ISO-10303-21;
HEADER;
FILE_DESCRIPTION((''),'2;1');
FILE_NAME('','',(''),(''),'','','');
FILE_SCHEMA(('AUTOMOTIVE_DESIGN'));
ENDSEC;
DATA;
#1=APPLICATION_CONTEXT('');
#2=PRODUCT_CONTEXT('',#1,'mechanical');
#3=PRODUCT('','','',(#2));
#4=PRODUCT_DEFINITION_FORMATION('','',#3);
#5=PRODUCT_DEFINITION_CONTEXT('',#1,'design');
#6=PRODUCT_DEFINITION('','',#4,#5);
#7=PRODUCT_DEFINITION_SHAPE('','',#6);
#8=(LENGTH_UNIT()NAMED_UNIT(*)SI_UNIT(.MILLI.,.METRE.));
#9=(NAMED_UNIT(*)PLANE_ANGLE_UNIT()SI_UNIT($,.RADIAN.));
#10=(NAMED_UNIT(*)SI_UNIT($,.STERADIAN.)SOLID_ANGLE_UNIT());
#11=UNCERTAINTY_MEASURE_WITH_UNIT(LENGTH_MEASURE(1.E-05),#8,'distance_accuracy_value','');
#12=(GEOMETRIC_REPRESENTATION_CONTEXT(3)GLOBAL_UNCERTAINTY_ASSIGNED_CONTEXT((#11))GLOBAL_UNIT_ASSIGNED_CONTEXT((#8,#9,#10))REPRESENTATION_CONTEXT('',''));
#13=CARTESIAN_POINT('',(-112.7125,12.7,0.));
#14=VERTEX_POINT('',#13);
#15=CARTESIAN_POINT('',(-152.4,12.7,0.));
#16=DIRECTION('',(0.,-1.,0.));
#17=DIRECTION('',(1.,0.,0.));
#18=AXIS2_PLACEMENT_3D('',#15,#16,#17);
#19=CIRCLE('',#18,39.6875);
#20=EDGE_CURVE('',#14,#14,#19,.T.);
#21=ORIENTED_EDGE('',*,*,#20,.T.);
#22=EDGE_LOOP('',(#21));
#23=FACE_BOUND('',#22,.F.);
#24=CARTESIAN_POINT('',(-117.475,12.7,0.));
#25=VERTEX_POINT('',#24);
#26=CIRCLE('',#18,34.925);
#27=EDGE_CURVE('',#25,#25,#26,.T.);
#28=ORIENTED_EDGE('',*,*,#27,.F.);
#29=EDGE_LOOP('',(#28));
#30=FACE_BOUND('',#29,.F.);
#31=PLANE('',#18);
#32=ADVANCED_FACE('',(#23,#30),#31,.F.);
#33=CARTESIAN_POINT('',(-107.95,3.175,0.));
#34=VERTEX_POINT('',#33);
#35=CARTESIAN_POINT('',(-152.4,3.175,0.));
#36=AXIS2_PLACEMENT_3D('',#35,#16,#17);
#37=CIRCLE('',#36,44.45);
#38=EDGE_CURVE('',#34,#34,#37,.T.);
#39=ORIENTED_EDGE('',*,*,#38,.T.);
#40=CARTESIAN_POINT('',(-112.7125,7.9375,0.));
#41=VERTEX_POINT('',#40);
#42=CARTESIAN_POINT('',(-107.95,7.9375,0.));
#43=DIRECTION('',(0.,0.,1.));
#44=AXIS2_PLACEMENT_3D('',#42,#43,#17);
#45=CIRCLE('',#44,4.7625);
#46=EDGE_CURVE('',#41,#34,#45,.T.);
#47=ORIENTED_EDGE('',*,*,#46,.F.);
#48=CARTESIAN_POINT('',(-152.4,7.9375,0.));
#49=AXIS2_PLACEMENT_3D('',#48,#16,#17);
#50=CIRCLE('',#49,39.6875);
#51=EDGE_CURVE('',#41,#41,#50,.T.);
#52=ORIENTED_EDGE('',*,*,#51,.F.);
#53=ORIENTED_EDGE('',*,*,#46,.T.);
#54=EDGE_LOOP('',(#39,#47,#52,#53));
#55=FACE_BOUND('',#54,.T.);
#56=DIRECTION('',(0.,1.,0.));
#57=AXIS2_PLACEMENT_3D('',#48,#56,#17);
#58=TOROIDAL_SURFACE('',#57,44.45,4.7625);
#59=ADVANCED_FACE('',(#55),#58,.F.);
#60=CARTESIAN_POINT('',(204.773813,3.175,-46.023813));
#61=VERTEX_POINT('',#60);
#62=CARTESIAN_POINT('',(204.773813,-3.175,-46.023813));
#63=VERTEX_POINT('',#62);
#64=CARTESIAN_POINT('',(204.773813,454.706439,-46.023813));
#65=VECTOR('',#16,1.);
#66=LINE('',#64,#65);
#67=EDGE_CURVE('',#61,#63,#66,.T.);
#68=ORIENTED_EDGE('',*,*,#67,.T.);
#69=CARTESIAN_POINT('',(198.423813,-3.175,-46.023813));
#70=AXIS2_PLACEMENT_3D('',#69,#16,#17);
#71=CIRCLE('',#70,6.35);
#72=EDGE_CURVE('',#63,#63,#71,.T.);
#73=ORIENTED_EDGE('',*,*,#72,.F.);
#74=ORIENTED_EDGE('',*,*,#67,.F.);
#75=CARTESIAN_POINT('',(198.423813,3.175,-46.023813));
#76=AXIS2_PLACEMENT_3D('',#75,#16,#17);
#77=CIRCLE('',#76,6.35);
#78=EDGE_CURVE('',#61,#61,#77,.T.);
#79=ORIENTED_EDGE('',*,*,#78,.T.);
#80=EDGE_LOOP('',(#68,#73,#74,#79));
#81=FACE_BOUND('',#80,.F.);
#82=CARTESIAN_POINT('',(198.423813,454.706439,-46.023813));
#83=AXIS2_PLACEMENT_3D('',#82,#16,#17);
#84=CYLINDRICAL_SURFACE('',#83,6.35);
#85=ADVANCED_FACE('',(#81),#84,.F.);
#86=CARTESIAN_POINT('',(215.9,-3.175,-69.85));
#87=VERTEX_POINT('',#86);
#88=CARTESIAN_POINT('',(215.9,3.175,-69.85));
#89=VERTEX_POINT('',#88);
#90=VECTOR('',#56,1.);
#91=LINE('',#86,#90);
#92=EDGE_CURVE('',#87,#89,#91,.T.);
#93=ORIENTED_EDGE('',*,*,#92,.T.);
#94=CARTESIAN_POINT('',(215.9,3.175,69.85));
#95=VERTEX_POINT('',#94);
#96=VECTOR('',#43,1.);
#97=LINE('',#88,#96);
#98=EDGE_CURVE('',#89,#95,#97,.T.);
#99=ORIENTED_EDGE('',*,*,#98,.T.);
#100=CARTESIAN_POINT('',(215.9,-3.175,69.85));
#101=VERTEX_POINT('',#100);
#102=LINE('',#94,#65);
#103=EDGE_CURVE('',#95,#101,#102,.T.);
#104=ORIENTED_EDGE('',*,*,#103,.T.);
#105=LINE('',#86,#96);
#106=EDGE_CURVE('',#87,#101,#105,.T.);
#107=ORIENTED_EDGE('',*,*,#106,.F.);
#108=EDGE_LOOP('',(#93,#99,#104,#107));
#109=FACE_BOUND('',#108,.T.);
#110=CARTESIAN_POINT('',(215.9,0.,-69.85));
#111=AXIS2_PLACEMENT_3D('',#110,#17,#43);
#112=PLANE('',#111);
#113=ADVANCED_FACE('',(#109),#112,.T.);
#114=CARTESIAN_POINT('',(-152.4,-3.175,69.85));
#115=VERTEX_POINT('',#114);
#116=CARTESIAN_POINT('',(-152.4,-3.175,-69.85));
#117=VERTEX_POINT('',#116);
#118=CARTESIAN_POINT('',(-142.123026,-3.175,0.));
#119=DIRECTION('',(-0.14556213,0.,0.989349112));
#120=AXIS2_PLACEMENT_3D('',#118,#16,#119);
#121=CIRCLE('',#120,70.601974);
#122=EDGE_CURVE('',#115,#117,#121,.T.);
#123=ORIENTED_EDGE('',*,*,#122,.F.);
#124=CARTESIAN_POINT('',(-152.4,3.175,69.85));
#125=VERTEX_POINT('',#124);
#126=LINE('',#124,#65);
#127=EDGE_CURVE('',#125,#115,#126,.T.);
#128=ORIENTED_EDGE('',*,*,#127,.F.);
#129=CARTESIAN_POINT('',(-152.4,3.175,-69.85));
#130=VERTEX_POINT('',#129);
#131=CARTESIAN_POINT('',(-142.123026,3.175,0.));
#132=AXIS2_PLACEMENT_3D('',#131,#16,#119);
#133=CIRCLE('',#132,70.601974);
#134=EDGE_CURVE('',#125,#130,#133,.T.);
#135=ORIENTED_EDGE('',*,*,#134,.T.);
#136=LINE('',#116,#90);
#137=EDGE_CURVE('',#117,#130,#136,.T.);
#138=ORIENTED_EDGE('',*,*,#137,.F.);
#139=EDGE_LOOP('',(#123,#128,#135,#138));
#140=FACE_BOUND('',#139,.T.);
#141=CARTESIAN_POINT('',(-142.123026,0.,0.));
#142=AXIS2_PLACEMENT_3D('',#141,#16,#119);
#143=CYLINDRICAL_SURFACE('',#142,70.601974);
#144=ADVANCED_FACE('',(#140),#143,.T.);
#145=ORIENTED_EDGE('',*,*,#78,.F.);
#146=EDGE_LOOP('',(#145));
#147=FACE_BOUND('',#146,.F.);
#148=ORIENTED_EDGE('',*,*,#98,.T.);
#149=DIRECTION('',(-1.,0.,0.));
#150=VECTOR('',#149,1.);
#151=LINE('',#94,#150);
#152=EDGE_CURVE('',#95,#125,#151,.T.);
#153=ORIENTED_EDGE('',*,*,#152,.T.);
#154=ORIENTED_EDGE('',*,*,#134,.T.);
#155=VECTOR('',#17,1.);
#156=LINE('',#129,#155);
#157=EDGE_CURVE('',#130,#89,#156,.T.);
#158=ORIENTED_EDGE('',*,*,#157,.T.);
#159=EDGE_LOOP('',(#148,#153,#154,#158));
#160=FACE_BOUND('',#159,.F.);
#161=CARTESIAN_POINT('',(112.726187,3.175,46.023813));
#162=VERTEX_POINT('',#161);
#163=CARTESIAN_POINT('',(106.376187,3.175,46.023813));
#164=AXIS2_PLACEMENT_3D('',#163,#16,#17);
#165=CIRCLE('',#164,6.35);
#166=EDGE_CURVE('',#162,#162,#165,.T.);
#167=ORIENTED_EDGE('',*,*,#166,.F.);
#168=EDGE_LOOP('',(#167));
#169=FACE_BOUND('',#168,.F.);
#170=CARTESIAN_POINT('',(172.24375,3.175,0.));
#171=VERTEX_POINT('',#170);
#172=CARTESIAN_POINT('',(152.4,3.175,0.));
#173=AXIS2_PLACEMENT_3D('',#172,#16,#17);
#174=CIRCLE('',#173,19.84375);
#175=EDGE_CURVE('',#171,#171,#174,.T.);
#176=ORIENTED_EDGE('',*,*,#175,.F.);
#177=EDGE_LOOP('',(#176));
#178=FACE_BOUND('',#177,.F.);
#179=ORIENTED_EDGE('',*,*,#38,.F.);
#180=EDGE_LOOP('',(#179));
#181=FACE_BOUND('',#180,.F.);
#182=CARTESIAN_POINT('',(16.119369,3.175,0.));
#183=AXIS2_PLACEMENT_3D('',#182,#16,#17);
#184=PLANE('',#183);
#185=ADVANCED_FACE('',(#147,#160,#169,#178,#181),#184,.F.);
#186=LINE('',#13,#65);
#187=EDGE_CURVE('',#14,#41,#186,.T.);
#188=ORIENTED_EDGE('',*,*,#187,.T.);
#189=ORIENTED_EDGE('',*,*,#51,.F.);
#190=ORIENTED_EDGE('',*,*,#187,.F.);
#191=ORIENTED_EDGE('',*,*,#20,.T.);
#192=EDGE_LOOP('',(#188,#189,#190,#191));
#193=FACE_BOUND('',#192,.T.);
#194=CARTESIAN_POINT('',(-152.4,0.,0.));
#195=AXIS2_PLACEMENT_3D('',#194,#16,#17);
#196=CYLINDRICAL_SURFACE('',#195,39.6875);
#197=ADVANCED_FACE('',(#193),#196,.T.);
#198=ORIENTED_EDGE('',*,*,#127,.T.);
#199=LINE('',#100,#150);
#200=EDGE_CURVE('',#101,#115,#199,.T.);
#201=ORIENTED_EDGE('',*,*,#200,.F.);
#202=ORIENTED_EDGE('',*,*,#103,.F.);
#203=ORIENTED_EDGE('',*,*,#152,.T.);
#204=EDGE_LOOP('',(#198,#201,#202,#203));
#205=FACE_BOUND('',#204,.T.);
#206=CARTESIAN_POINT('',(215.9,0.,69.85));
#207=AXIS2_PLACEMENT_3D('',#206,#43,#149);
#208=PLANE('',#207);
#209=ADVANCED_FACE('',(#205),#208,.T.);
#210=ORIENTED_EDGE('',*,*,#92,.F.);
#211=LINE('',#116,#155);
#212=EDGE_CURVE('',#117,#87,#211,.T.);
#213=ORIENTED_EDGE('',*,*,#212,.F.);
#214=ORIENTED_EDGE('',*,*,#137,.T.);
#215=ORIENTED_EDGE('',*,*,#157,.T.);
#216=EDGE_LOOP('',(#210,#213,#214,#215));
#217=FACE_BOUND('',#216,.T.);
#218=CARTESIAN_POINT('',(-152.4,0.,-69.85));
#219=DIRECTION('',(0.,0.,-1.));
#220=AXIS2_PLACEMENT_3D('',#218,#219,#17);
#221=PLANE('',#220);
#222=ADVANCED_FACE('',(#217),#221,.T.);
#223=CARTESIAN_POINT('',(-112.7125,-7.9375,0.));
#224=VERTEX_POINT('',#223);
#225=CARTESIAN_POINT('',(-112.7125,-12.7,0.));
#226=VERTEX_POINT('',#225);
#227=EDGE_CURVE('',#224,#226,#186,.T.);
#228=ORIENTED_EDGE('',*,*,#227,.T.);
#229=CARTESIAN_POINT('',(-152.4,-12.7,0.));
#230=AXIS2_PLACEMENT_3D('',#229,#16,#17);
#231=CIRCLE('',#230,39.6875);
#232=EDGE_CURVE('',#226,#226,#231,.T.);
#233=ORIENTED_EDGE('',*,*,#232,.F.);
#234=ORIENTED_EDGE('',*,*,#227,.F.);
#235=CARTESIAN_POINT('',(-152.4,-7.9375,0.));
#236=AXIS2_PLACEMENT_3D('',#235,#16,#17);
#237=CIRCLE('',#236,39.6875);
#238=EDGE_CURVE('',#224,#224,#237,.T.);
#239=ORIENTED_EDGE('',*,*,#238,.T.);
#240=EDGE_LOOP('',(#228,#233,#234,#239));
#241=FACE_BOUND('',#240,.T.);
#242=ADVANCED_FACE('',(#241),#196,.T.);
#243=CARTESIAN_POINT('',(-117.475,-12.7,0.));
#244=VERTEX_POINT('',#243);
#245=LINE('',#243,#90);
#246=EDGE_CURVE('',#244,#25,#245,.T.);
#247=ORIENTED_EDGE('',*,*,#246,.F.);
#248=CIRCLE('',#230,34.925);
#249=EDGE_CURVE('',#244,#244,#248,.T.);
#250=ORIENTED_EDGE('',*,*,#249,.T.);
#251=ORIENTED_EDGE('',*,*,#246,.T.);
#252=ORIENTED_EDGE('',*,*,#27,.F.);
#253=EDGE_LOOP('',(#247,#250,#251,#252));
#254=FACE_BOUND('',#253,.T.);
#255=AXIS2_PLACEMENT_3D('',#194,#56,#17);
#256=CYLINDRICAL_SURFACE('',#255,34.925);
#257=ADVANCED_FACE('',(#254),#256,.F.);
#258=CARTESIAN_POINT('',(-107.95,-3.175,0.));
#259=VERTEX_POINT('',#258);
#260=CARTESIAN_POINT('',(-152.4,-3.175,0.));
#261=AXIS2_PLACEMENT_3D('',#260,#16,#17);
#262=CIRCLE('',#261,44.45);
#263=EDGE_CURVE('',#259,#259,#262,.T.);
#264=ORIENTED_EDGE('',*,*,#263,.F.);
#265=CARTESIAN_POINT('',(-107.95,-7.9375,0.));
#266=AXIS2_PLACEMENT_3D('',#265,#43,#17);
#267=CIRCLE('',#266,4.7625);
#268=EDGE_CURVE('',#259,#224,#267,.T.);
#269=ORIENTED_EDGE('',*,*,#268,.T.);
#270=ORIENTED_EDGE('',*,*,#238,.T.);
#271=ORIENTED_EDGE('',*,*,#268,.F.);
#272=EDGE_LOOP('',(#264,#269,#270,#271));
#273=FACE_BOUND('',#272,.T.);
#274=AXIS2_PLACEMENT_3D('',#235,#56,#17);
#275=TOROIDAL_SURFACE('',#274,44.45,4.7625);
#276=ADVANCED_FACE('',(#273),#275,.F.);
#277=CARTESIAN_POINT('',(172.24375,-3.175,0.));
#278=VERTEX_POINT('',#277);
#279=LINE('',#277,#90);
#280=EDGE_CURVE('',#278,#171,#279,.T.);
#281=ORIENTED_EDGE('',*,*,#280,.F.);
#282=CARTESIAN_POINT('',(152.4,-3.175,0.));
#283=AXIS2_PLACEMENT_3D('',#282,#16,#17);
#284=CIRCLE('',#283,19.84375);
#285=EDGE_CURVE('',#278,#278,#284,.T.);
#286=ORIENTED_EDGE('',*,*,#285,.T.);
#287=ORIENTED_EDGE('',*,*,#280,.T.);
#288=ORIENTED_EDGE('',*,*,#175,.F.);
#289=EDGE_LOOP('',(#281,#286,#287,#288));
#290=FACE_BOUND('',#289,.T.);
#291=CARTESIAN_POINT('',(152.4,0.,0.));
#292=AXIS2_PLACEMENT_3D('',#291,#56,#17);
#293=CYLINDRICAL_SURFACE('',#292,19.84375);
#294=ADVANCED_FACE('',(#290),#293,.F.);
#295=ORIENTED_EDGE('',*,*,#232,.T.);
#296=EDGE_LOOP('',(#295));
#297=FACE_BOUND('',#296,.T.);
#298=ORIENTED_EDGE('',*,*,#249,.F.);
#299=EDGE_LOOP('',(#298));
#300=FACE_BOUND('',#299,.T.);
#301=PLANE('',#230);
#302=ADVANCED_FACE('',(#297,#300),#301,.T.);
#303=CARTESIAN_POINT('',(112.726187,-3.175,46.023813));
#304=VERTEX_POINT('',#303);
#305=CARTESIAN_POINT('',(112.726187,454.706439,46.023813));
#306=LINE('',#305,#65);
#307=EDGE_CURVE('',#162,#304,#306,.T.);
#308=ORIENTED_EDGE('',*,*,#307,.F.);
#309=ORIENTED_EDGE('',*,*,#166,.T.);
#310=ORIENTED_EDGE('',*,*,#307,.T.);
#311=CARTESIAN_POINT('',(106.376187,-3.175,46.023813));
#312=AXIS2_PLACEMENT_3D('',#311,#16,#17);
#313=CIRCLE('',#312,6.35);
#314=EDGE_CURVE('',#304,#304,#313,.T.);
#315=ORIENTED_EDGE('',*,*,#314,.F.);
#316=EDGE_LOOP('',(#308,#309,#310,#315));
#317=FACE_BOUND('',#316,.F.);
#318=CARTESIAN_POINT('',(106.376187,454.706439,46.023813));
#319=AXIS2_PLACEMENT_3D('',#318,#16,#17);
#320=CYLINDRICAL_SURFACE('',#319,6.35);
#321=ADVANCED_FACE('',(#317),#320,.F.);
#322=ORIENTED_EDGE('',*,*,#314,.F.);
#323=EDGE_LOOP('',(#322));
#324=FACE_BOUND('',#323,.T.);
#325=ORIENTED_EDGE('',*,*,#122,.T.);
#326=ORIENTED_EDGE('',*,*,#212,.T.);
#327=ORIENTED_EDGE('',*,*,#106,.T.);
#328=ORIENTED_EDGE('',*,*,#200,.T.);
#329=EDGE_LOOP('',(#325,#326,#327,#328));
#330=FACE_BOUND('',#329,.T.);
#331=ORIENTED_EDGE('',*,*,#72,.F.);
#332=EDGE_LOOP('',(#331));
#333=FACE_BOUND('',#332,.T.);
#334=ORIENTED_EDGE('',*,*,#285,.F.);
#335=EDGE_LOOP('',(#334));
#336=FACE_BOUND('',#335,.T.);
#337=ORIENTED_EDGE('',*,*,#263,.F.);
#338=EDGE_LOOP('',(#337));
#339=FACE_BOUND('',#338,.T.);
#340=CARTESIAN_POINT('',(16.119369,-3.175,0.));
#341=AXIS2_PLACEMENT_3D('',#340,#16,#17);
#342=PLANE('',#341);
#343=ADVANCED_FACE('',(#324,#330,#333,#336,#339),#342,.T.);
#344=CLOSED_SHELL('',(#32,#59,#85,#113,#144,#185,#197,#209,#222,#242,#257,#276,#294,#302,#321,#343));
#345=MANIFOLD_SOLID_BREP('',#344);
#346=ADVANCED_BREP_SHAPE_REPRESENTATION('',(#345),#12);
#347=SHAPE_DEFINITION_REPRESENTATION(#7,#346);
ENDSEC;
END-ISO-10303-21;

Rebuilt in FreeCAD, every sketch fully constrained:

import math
import FreeCAD as App
import Part
import Sketcher
Q = App.Units.Quantity


def edges_at(feature, points):
    """Names of the edges that pass closest to the given points."""
    edges = feature.Shape.Edges
    near = lambda p: min(range(len(edges)), key=lambda i: edges[i].distToShape(Part.Vertex(*p))[0])
    return sorted({f"Edge{near(p) + 1}" for p in points})

doc = App.newDocument("Part")
body = doc.addObject("PartDesign::Body", "Body")

# Sketch on XZ plane
sketch1 = body.newObject("Sketcher::SketchObject", "Sketch")
sketch1.AttachmentSupport = (doc.getObject("XZ_Plane"), [""])
sketch1.MapMode = "FlatFace"
sketch1.addGeometry([
    Part.LineSegment(App.Vector(216, -70, 0), App.Vector(216, 70, 0)),  # 0
    Part.LineSegment(App.Vector(216, 70, 0), App.Vector(-152, 70, 0)),  # 1
    Part.ArcOfCircle(Part.Circle(App.Vector(-142, 0, 0), App.Vector(0, 0, 1), 71), math.radians(98), math.radians(262)),  # 2
    Part.LineSegment(App.Vector(-152, -70, 0), App.Vector(216, -70, 0)),  # 3
    Part.Circle(App.Vector(-152, 0, 0), App.Vector(0, 0, 1), 40),  # 4
    Part.Circle(App.Vector(152, 0, 0), App.Vector(0, 0, 1), 20),  # 5
], False)
sketch1.addConstraint([
    Sketcher.Constraint("Coincident", 0, 2, 1, 1),
    Sketcher.Constraint("Coincident", 1, 2, 2, 1),
    Sketcher.Constraint("Coincident", 2, 2, 3, 1),
    Sketcher.Constraint("Coincident", 3, 2, 0, 1),
    Sketcher.Constraint("Vertical", 0),
    Sketcher.Constraint("Horizontal", 1),
    Sketcher.Constraint("Horizontal", 3),
    Sketcher.Constraint("Symmetric", 4, 3, 5, 3, -1, 1),
    Sketcher.Constraint("Symmetric", 1, 2, 2, 2, -1),
    Sketcher.Constraint("PointOnObject", 4, 3, -1),
    Sketcher.Constraint("Vertical", 4, 3, 1, 2),
    Sketcher.Constraint("Diameter", 4, Q("3.125 in")),
    Sketcher.Constraint("Diameter", 5, Q("1.5625 in")),
    Sketcher.Constraint("DistanceX", 1, 2, 1, 1, Q("14.5 in")),
    Sketcher.Constraint("DistanceY", 0, 1, 0, 2, Q("5.5 in")),
    Sketcher.Constraint("DistanceX", 4, 3, -1, 1, Q("6 in")),
    Sketcher.Constraint("Radius", 2, 70.601974),
])
pad1 = body.newObject("PartDesign::Pad", "Pad")
pad1.Profile = sketch1
pad1.Length = Q("0.25 in")
pad1.Midplane = True

# Sketch on XZ plane
sketch2 = body.newObject("Sketcher::SketchObject", "Sketch001")
sketch2.AttachmentSupport = (doc.getObject("XZ_Plane"), [""])
sketch2.MapMode = "FlatFace"
sketch2.addGeometry([
    Part.Circle(App.Vector(-152, 0, 0), App.Vector(0, 0, 1), 40),
    Part.Circle(App.Vector(-152, 0, 0), App.Vector(0, 0, 1), 35),
], False)
sketch2.addConstraint([
    Sketcher.Constraint("Coincident", 1, 3, 0, 3),
    Sketcher.Constraint("PointOnObject", 0, 3, -1),
    Sketcher.Constraint("Diameter", 1, Q("2.75 in")),
    Sketcher.Constraint("Diameter", 0, Q("3.125 in")),
    Sketcher.Constraint("DistanceX", 0, 3, -1, 1, Q("6 in")),
])
pad2 = body.newObject("PartDesign::Pad", "Pad001")
pad2.Profile = sketch2
pad2.Length = Q("1 in")
pad2.Midplane = True
doc.recompute()

fillet = body.newObject("PartDesign::Fillet", "Fillet")
fillet.Base = (pad2, edges_at(pad2, [(-192.088, -3.175, 0), (-192.088, 3.175, 0)]))
fillet.Radius = Q("0.1875 in")

# Sketch on XZ plane
sketch3 = body.newObject("Sketcher::SketchObject", "Sketch002")
sketch3.AttachmentSupport = (doc.getObject("XZ_Plane"), [""])
sketch3.MapMode = "FlatFace"
sketch3.AttachmentOffset = App.Placement(App.Vector(0, 0, -0.125 * 25.4), App.Rotation())
sketch3.addGeometry([
    Part.Circle(App.Vector(106, 46, 0), App.Vector(0, 0, 1), 6),
    Part.Circle(App.Vector(198, -46, 0), App.Vector(0, 0, 1), 6),
], False)
sketch3.addConstraint([
    Sketcher.Constraint("Equal", 0, 1),
    Sketcher.Constraint("Diameter", 0, Q("0.5 in")),
    Sketcher.Constraint("DistanceX", -1, 1, 0, 3, 106.376187),
    Sketcher.Constraint("DistanceY", -1, 1, 0, 3, 46.023813),
    Sketcher.Constraint("DistanceX", -1, 1, 1, 3, 198.423813),
    Sketcher.Constraint("DistanceY", 1, 3, -1, 1, 46.023813),
])
doc.recompute()
hole = body.newObject("PartDesign::Hole", "Hole")
hole.Profile = sketch3
hole.ThreadType = "None"
hole.Diameter = Q("0.5 in")
hole.DepthType = "ThroughAll"
hole.Reversed = True

doc.recompute()
